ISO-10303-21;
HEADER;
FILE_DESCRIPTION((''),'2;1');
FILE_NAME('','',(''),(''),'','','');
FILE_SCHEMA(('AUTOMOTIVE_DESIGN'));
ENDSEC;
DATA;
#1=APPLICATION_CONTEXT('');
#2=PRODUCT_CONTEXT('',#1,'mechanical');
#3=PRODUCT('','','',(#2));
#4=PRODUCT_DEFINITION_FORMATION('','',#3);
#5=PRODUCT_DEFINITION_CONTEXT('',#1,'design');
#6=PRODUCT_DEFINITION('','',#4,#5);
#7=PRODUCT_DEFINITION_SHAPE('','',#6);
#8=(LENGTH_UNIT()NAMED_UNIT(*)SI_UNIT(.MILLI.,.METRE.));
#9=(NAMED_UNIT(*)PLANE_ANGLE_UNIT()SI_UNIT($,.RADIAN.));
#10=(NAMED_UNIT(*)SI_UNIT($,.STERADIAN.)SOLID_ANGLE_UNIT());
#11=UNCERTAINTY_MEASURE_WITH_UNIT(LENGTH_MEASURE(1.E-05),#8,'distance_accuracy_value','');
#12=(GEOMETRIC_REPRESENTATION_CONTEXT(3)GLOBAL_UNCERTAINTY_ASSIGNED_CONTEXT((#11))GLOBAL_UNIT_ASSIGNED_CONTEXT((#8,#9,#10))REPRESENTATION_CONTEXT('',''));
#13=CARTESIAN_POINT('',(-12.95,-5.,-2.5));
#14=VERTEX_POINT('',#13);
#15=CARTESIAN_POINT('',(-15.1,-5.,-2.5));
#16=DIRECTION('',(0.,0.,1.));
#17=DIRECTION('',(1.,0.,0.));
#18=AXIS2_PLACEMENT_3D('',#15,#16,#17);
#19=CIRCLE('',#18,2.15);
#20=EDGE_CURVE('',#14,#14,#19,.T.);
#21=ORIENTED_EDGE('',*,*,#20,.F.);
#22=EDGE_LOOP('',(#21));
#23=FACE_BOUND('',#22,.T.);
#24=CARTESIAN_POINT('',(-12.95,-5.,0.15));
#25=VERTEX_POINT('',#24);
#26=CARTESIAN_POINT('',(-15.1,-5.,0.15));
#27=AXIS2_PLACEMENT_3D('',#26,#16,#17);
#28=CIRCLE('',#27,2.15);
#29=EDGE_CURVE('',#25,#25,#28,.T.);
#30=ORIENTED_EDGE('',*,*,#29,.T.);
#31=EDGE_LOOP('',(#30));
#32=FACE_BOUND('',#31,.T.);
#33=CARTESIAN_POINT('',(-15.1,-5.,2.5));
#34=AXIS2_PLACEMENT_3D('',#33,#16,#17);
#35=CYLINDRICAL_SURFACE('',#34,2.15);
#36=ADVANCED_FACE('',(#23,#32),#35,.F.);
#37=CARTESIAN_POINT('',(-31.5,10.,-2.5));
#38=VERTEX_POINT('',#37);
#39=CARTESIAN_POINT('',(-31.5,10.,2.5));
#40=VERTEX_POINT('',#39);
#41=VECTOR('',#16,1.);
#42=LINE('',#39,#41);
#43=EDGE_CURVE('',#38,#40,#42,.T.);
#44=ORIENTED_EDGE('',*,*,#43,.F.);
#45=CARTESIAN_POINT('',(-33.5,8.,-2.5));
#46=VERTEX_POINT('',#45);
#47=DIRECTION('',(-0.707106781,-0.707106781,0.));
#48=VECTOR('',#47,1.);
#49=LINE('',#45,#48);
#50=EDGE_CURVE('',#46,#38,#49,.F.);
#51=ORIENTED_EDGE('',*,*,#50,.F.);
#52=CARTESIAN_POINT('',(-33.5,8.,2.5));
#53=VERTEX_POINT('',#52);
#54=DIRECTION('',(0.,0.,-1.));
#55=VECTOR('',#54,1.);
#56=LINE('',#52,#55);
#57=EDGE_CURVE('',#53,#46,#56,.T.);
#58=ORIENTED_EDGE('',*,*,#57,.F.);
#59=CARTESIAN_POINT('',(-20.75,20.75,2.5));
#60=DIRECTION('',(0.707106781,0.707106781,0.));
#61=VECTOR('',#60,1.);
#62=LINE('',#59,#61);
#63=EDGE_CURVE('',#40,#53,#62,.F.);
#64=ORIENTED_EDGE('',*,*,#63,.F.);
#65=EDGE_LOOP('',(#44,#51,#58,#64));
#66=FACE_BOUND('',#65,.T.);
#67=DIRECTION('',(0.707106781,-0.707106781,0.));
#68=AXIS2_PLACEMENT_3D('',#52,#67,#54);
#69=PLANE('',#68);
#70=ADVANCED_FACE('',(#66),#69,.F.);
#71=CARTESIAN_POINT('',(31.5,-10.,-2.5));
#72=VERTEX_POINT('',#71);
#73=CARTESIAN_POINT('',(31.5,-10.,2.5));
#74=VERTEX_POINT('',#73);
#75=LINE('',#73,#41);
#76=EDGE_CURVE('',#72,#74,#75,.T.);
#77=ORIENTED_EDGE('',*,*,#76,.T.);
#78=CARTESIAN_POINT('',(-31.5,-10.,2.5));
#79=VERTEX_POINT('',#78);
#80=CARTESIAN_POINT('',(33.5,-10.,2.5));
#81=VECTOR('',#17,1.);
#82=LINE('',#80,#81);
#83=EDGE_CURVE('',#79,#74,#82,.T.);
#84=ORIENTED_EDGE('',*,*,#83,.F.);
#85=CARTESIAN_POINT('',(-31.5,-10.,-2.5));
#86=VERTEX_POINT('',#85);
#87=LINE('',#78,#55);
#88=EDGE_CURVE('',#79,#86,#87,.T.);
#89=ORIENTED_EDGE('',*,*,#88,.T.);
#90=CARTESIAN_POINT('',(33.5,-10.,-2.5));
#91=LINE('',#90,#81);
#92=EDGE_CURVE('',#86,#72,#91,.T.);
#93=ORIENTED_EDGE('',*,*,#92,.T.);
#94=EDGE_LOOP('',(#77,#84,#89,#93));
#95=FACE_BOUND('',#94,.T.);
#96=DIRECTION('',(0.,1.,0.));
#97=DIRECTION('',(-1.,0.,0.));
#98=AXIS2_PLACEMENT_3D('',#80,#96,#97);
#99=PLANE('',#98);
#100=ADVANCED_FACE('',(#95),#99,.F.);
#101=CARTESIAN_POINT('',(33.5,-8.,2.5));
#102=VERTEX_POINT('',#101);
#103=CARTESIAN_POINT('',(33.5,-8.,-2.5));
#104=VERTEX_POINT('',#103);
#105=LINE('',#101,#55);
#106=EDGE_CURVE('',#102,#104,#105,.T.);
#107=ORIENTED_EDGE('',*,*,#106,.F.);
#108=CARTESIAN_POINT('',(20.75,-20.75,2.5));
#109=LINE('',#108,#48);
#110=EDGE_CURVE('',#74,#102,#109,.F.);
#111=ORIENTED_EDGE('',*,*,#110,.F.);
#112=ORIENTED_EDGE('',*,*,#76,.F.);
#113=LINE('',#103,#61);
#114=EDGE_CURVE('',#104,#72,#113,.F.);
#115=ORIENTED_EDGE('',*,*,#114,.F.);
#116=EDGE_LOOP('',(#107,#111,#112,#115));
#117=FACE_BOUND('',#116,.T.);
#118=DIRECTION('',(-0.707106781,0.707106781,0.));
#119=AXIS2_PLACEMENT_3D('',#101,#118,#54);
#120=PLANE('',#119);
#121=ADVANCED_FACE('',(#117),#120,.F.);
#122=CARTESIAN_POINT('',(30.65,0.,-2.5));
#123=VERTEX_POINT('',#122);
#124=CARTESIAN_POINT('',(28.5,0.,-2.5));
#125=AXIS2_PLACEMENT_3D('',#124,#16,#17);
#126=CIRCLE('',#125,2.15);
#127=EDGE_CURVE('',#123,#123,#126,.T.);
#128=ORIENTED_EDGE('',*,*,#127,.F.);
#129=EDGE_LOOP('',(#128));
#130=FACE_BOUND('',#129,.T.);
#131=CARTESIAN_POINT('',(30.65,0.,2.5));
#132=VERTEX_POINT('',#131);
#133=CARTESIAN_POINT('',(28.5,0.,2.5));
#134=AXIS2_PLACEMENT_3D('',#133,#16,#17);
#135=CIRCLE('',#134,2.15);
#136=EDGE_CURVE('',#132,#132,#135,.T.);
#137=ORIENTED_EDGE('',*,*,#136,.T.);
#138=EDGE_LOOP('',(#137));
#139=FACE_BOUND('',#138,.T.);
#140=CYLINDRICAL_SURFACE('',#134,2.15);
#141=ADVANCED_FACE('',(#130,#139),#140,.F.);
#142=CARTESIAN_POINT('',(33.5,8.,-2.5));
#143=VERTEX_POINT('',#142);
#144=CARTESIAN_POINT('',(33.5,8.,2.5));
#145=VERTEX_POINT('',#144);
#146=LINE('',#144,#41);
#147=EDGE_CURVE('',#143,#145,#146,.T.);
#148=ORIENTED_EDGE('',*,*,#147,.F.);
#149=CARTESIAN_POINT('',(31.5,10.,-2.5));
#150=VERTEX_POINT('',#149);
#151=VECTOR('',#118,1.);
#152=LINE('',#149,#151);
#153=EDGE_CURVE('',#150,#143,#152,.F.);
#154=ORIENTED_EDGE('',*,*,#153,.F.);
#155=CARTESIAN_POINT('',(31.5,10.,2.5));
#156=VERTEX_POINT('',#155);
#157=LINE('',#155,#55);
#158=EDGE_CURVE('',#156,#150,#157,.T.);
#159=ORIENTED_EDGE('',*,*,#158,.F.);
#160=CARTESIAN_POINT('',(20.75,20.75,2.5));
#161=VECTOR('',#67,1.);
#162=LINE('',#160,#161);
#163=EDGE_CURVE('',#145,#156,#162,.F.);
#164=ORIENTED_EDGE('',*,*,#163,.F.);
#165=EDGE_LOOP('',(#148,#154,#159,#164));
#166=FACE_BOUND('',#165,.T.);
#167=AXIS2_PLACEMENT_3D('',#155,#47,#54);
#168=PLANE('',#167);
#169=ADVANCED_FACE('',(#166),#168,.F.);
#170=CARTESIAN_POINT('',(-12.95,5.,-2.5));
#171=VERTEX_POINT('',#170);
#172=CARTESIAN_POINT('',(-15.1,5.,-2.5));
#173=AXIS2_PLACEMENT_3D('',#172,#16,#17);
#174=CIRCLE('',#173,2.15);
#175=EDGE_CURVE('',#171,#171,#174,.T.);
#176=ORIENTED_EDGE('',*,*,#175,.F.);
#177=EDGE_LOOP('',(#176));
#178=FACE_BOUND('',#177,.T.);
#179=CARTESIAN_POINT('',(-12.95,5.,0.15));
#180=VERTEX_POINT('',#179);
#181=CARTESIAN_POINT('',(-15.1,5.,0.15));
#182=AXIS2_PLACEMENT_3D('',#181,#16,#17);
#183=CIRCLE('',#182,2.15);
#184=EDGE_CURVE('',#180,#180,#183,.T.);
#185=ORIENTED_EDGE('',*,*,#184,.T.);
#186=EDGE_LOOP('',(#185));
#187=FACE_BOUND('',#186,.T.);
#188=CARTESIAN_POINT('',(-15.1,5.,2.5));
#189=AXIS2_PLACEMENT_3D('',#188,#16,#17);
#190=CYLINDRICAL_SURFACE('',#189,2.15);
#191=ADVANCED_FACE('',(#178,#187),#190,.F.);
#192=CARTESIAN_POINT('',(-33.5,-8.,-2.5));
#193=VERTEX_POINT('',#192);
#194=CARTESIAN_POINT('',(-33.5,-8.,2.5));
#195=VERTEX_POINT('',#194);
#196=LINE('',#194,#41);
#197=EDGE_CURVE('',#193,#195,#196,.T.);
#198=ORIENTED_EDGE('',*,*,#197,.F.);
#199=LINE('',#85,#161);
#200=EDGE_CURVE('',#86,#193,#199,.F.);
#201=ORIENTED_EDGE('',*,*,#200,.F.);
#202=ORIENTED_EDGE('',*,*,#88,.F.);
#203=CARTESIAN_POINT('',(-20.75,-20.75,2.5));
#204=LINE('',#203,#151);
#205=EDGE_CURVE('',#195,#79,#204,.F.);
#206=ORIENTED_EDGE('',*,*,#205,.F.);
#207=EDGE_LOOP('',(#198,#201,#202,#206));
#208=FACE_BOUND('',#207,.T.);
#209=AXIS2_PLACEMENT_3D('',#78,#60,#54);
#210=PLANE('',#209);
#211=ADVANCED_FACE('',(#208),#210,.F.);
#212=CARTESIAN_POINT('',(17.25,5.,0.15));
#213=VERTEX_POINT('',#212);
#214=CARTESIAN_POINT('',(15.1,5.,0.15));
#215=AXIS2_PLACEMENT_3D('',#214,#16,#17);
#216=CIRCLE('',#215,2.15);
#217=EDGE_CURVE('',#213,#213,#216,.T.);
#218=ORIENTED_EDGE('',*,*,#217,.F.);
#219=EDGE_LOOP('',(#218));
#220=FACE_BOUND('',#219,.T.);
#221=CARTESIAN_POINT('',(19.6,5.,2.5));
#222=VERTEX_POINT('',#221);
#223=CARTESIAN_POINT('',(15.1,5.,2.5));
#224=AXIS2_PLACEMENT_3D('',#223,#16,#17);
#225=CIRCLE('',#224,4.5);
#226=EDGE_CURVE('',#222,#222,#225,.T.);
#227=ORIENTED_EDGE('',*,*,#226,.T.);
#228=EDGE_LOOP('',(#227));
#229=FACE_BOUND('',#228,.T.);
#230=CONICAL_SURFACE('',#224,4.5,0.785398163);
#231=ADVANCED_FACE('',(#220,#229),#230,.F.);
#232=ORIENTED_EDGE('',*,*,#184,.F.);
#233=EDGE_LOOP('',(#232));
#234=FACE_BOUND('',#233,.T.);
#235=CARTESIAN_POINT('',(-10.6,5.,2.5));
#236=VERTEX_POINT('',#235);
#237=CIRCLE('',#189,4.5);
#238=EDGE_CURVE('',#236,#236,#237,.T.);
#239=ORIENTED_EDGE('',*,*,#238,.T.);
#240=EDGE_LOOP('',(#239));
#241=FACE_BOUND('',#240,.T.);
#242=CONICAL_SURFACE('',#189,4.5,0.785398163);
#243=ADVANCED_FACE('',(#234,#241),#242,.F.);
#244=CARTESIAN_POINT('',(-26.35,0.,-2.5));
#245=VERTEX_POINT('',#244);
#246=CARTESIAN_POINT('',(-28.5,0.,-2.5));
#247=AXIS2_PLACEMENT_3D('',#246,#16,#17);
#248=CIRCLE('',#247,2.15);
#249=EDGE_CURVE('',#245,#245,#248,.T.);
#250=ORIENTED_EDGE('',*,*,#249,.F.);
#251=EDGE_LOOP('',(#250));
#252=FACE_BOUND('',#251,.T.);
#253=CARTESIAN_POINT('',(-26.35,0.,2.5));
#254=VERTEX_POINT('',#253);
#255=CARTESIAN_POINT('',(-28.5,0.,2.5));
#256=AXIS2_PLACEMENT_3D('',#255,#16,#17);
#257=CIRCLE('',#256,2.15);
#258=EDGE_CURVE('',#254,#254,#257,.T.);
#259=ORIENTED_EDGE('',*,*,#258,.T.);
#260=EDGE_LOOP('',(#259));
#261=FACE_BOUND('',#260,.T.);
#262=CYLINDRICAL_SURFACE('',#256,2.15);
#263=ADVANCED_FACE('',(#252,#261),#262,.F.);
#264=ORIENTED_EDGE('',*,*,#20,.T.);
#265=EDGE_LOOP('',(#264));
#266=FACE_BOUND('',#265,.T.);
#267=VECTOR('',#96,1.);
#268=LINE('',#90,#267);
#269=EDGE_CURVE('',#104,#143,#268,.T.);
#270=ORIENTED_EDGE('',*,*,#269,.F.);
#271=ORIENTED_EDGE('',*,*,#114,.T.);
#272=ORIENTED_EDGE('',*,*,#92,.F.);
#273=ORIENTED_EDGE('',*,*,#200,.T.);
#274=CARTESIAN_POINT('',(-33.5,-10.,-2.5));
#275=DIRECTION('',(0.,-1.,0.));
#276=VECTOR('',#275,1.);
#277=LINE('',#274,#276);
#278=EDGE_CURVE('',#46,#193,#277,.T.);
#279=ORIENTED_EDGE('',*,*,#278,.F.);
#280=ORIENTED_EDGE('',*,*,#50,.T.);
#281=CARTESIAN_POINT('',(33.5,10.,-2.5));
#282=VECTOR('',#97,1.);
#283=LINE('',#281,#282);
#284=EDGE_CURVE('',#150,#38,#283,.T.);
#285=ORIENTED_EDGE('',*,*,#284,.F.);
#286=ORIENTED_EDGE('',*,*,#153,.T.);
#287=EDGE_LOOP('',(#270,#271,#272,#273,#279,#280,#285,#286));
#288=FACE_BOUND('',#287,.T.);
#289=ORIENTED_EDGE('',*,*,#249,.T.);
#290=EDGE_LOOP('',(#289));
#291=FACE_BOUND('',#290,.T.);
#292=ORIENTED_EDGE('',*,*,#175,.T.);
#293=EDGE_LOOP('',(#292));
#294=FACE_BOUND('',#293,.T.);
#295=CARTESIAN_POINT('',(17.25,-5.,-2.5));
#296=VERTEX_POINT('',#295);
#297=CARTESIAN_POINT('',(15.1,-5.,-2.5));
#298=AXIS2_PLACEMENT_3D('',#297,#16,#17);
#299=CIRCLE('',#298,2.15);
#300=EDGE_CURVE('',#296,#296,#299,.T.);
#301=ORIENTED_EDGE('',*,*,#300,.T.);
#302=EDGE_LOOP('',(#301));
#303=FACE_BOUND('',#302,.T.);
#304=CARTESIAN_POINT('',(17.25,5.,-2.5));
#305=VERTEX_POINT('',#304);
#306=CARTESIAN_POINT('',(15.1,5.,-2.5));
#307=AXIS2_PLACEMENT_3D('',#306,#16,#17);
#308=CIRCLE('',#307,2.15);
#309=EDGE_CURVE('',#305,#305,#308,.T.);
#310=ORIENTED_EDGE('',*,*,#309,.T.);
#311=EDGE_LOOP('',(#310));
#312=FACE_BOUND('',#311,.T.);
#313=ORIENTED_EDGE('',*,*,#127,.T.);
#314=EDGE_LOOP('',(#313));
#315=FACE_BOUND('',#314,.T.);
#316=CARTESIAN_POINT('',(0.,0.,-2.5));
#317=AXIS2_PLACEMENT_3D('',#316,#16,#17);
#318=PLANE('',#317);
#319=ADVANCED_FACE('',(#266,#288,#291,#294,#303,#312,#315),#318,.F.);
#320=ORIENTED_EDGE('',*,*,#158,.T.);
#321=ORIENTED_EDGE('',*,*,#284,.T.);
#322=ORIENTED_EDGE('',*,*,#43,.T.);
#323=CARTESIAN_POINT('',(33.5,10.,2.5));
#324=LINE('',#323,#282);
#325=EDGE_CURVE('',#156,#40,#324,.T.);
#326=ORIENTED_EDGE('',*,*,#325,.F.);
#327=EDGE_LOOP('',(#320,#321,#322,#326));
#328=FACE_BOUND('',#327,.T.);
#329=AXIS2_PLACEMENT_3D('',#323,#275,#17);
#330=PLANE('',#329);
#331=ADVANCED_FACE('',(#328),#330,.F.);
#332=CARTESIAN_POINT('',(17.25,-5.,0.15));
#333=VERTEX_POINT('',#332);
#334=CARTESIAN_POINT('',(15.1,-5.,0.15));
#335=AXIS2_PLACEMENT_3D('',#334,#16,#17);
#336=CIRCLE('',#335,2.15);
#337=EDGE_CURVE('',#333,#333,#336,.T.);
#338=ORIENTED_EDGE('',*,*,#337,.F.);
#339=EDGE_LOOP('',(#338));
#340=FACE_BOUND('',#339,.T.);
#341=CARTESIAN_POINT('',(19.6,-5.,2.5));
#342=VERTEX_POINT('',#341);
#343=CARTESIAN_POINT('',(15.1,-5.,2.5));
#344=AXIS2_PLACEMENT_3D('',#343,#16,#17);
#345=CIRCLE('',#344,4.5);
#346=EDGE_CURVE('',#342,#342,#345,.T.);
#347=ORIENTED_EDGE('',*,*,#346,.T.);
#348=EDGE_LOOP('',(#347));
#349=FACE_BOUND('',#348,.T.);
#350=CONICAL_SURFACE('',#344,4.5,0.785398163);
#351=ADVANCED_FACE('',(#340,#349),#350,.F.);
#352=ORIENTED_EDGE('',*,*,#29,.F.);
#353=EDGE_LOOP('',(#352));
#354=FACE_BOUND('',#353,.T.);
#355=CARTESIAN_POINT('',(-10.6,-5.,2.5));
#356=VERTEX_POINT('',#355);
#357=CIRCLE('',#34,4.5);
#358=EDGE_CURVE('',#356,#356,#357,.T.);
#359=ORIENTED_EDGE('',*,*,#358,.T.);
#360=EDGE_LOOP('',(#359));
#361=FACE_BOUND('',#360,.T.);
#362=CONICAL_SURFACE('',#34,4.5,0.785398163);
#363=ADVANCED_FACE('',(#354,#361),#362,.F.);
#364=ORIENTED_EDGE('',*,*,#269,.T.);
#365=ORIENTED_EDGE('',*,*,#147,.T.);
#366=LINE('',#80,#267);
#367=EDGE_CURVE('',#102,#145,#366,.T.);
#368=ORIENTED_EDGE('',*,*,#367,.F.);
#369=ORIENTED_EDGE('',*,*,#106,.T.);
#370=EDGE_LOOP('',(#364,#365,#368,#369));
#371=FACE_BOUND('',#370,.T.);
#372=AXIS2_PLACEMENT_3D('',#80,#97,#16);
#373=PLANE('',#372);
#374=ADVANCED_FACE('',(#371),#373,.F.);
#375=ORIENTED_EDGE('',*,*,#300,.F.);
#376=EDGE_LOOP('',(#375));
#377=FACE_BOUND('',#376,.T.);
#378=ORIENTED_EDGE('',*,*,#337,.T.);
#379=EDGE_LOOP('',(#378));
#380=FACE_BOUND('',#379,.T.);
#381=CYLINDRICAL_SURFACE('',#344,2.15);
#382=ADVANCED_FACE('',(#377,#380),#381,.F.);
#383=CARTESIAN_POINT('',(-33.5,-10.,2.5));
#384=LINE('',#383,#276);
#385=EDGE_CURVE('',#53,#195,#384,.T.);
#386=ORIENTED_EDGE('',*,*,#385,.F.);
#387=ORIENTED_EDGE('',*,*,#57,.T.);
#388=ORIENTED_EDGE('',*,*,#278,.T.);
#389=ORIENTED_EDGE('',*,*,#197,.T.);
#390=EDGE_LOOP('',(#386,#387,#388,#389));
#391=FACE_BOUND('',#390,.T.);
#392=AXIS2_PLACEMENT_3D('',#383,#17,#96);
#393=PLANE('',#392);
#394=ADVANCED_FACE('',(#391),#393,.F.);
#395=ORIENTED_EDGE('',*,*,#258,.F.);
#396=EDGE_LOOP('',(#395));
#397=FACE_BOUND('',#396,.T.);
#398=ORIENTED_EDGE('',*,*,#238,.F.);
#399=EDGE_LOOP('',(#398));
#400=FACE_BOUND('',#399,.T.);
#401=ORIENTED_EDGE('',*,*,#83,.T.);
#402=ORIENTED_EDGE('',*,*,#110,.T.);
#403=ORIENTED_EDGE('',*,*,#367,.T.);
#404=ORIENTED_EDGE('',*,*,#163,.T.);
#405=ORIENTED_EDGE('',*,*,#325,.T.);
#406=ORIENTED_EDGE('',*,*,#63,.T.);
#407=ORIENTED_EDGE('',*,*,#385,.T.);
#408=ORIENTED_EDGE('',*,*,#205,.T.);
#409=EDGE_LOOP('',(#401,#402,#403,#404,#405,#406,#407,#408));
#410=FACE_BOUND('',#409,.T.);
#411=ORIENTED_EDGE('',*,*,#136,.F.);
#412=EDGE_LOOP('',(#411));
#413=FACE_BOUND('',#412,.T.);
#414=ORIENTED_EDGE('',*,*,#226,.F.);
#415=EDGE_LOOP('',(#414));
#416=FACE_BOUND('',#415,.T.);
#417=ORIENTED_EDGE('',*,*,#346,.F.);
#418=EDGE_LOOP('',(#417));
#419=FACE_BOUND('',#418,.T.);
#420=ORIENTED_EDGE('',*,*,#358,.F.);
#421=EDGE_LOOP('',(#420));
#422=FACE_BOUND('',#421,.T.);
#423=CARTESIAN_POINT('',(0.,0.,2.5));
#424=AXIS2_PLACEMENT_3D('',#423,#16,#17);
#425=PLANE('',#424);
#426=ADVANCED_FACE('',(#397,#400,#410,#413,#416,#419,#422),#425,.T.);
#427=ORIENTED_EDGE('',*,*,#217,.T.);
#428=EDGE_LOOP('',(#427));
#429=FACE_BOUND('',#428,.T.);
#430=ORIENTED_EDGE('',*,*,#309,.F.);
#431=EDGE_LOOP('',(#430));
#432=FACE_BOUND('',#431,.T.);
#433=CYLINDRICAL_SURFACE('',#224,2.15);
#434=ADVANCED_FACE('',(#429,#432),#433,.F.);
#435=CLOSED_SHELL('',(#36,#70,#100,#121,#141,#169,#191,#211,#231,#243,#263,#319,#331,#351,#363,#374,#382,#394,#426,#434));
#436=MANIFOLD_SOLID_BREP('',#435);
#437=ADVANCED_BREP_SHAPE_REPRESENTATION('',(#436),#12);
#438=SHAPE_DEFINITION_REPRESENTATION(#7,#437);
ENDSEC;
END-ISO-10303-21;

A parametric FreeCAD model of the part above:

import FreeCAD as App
import Part
import Sketcher

V = App.Vector


def edges_at(feature, points):
    """Names of the edges that pass closest to the given points."""
    edges = feature.Shape.Edges
    near = lambda p: min(range(len(edges)), key=lambda i: edges[i].distToShape(Part.Vertex(*p))[0])
    return sorted({f"Edge{near(p) + 1}" for p in points})


def add_polygon(sketch, points):
    """Adds a closed chain of lines whose ends are joined by coincident constraints."""
    first, n = sketch.GeometryCount, len(points)
    for a, b in zip(points, points[1:] + points[:1]):
        sketch.addGeometry(Part.LineSegment(App.Vector(*a, 0), App.Vector(*b, 0)), False)
    for i in range(n):
        sketch.addConstraint(Sketcher.Constraint("Coincident", first + i, 2, first + (i + 1) % n, 1))

doc = App.newDocument("Part")
body = doc.addObject("PartDesign::Body", "Body")

# Sketch on XY plane
sketch1 = body.newObject("Sketcher::SketchObject", "Sketch")
sketch1.AttachmentSupport = (doc.getObject("XY_Plane"), [""])
sketch1.MapMode = "FlatFace"
add_polygon(sketch1, [(-34, 10), (-34, -10), (34, -10), (34, 10)])  # lines 0-3
sketch1.addConstraint(Sketcher.Constraint("Vertical", 0))
sketch1.addConstraint(Sketcher.Constraint("Horizontal", 1))
sketch1.addConstraint(Sketcher.Constraint("Vertical", 2))
sketch1.addConstraint(Sketcher.Constraint("Horizontal", 3))
sketch1.addConstraint(Sketcher.Constraint("Symmetric", 0, 2, 2, 2, -1, 1))
sketch1.addConstraint(Sketcher.Constraint("DistanceX", 1, 1, 1, 2, 67.0))
sketch1.addConstraint(Sketcher.Constraint("DistanceY", 0, 2, 0, 1, 20.0))
pad1 = body.newObject("PartDesign::Pad", "Pad")
pad1.Profile = sketch1
pad1.Length = 5
pad1.Midplane = True

# Sketch on XY plane
sketch2 = body.newObject("Sketcher::SketchObject", "Sketch001")
sketch2.AttachmentSupport = (doc.getObject("XY_Plane"), [""])
sketch2.MapMode = "FlatFace"
sketch2.AttachmentOffset = App.Placement(V(0, 0, 2.5), App.Rotation())
sketch2.addGeometry(Part.Circle(V(-28.5, 0, 0), V(0, 0, 1), 2.1), False)
sketch2.addGeometry(Part.Circle(V(28.5, 0, 0), V(0, 0, 1), 2.1), False)
sketch2.addConstraint(Sketcher.Constraint("Equal", 0, 1))
sketch2.addConstraint(Sketcher.Constraint("Symmetric", 0, 3, 1, 3, -1, 1))
sketch2.addConstraint(Sketcher.Constraint("PointOnObject", 0, 3, -1))
sketch2.addConstraint(Sketcher.Constraint("Diameter", 0, 4.3))
sketch2.addConstraint(Sketcher.Constraint("DistanceX", 0, 3, 1, 3, 57.0))
doc.recompute()
hole = body.newObject("PartDesign::Hole", "Hole")
hole.Profile = sketch2
hole.ThreadType = "None"
hole.Diameter = 4.3
hole.DepthType = "ThroughAll"

# Sketch on XY plane
sketch3 = body.newObject("Sketcher::SketchObject", "Sketch002")
sketch3.AttachmentSupport = (doc.getObject("XY_Plane"), [""])
sketch3.MapMode = "FlatFace"
sketch3.AttachmentOffset = App.Placement(V(0, 0, 2.5), App.Rotation())
sketch3.addGeometry(Part.Circle(V(-15.1, -5, 0), V(0, 0, 1), 2.1), False)
sketch3.addGeometry(Part.Circle(V(-15.1, 5, 0), V(0, 0, 1), 2.1), False)
sketch3.addGeometry(Part.Circle(V(15.1, 5, 0), V(0, 0, 1), 2.1), False)
sketch3.addGeometry(Part.Circle(V(15.1, -5, 0), V(0, 0, 1), 2.1), False)
sketch3.addConstraint(Sketcher.Constraint("Equal", 0, 1))
sketch3.addConstraint(Sketcher.Constraint("Equal", 1, 2))
sketch3.addConstraint(Sketcher.Constraint("Equal", 2, 3))
sketch3.addConstraint(Sketcher.Constraint("Symmetric", 0, 3, 2, 3, -1, 1))
sketch3.addConstraint(Sketcher.Constraint("Symmetric", 1, 3, 3, 3, -1, 1))
sketch3.addConstraint(Sketcher.Constraint("Symmetric", 1, 3, 2, 3, -2))
sketch3.addConstraint(Sketcher.Constraint("Diameter", 0, 4.3))
sketch3.addConstraint(Sketcher.Constraint("DistanceY", 0, 3, -1, 1, 5.0))
sketch3.addConstraint(Sketcher.Constraint("DistanceX", 0, 3, -1, 1, 15.1))
doc.recompute()
hole2 = body.newObject("PartDesign::Hole", "Hole001")
hole2.Profile = sketch3
hole2.ThreadType = "None"
hole2.Diameter = 4.3
hole2.DepthType = "ThroughAll"
hole2.HoleCutType = "Countersink"
hole2.HoleCutDiameter = 9
hole2.HoleCutCountersinkAngle = 90
doc.recompute()

chamfer = body.newObject("PartDesign::Chamfer", "Chamfer")
chamfer.Base = (hole2, edges_at(hole2, [
    (-33.5, 10, 0),
    (33.5, 10, 0),
    (33.5, -10, 0),
    (-33.5, -10, 0),
]))
chamfer.Size = 2

doc.recompute()
